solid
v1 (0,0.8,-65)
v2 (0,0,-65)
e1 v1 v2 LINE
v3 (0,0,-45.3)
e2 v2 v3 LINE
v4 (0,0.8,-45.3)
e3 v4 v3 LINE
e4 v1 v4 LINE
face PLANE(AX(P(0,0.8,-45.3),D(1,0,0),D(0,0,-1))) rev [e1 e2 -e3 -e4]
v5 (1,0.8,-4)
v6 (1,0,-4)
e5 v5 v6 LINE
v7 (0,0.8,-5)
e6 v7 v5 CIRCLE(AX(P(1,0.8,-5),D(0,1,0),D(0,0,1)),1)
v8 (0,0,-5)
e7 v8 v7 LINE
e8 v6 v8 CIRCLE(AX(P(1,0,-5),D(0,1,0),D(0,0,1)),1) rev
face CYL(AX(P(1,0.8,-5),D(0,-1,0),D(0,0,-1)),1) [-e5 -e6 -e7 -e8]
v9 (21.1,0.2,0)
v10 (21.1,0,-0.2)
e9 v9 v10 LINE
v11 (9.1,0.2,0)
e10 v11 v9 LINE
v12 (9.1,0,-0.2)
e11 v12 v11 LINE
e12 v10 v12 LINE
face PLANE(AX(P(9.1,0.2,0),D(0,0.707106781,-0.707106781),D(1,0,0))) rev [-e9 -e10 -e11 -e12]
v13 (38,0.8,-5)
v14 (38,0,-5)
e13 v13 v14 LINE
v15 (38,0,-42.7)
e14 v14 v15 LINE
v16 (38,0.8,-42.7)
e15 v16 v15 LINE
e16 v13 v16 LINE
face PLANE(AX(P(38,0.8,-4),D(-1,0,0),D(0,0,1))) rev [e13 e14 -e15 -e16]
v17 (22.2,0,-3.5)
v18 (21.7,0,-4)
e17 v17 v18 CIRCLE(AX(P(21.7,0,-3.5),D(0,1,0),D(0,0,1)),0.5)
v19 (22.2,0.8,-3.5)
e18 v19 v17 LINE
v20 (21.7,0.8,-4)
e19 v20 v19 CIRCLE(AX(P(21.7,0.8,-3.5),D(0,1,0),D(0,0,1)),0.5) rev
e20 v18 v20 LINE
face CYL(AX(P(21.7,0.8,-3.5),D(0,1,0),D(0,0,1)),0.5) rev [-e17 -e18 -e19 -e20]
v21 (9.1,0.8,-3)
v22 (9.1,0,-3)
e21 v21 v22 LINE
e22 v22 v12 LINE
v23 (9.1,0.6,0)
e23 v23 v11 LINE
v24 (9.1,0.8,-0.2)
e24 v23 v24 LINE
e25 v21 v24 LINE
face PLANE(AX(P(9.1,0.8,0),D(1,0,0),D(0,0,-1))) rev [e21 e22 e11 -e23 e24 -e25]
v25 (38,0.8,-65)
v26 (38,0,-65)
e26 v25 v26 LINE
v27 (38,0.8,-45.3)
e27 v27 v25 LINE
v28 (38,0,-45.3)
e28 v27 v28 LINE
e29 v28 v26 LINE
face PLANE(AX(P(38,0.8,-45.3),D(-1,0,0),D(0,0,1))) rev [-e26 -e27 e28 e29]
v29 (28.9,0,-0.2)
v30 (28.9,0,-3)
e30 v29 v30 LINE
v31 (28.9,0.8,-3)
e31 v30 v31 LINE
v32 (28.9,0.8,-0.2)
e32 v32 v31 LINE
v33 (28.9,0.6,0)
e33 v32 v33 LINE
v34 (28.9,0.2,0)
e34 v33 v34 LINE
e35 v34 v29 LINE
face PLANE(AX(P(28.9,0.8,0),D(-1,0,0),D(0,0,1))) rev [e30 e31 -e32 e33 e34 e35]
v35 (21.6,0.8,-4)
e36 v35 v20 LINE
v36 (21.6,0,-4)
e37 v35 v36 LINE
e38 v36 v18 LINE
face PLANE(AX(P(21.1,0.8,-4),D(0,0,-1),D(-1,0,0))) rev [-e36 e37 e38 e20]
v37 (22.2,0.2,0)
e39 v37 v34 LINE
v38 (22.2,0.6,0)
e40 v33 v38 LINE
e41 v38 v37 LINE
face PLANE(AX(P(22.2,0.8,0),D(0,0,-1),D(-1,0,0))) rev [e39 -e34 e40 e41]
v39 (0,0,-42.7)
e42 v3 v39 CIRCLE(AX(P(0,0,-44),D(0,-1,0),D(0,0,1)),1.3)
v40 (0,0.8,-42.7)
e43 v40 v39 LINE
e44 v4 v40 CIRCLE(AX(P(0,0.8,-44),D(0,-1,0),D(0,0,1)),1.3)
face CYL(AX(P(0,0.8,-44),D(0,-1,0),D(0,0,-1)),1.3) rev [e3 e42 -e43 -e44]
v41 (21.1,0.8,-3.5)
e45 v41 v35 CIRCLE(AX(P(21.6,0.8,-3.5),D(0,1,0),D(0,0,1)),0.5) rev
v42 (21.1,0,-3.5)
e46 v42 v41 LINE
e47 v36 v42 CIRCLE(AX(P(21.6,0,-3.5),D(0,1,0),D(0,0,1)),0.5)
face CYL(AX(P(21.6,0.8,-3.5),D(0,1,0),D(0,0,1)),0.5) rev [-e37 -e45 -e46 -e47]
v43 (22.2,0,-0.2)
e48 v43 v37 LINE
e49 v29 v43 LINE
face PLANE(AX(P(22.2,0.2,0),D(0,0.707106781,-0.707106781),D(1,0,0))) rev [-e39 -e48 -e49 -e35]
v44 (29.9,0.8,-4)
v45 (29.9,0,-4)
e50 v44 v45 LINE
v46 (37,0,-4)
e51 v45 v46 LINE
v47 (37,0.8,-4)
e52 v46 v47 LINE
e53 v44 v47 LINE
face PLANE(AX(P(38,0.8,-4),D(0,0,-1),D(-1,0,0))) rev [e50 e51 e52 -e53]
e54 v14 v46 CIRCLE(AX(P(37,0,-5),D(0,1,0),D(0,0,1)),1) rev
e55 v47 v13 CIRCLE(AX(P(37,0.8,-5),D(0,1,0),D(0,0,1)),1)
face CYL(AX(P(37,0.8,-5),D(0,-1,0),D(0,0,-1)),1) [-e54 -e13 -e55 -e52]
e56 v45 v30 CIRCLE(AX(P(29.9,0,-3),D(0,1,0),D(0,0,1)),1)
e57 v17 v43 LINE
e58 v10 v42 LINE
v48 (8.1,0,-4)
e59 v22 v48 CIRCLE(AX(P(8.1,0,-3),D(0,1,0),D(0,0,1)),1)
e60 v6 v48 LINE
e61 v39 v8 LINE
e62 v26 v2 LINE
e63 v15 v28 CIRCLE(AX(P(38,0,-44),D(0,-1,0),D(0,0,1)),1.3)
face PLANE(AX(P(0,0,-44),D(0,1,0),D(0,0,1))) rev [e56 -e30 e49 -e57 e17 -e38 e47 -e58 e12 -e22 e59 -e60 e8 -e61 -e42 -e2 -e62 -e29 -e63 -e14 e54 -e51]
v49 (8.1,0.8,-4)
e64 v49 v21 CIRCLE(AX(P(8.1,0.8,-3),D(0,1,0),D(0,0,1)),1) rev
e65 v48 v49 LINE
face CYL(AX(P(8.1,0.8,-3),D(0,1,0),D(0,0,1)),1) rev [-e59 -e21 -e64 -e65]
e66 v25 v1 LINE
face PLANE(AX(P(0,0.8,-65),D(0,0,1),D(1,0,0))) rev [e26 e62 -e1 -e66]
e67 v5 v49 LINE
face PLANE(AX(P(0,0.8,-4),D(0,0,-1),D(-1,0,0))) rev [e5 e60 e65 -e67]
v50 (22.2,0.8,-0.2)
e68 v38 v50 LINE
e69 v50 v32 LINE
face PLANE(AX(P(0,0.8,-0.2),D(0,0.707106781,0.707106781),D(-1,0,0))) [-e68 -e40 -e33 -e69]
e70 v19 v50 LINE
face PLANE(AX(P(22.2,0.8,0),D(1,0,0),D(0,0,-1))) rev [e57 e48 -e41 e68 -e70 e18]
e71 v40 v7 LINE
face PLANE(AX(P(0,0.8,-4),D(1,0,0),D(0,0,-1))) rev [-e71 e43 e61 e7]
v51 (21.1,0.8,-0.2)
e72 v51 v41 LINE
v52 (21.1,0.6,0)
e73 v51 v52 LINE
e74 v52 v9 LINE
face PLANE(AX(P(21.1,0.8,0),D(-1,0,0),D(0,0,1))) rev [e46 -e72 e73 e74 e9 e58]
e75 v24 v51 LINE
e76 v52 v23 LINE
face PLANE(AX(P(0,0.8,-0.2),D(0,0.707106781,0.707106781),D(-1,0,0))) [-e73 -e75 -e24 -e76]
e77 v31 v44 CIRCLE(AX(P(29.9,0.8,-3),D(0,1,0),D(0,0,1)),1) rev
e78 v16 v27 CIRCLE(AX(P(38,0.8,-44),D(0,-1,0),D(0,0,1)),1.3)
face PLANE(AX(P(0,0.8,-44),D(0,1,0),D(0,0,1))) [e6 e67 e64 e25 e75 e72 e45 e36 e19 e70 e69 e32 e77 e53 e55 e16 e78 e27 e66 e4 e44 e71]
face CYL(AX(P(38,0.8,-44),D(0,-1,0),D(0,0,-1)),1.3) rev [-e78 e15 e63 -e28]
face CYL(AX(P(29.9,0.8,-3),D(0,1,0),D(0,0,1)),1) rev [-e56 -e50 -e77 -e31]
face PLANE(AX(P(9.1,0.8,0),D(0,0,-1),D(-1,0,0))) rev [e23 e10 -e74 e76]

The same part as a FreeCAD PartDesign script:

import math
import FreeCAD as App
import Part
import Sketcher

V = App.Vector
Q = App.Units.Quantity


def edges_at(feature, points):
    """Names of the edges that pass closest to the given points."""
    edges = feature.Shape.Edges
    near = lambda p: min(range(len(edges)), key=lambda i: edges[i].distToShape(Part.Vertex(*p))[0])
    return sorted({f"Edge{near(p) + 1}" for p in points})

doc = App.newDocument("Part")
body = doc.addObject("PartDesign::Body", "Body")

# Sketch on XZ plane
sketch1 = doc.addObject("Sketcher::SketchObject", "Sketch")
body.addObject(sketch1)
sketch1.AttachmentSupport = (doc.XZ_Plane, [""])
sketch1.MapMode = "FlatFace"
sketch1.addGeometry(Part.LineSegment(V(9.1, 0, 0), V(21.1, 0, 0)), False)
sketch1.addGeometry(Part.LineSegment(V(21.1, 0, 0), V(21.1, -4, 0)), False)
sketch1.addGeometry(Part.LineSegment(V(21.1, -4, 0), V(22.2, -4, 0)), False)
sketch1.addGeometry(Part.LineSegment(V(22.2, -4, 0), V(22.2, 0, 0)), False)
sketch1.addGeometry(Part.LineSegment(V(22.2, 0, 0), V(28.9, 0, 0)), False)
sketch1.addGeometry(Part.LineSegment(V(28.9, 0, 0), V(28.9, -4, 0)), False)
sketch1.addGeometry(Part.LineSegment(V(28.9, -4, 0), V(38, -4, 0)), False)
sketch1.addGeometry(Part.LineSegment(V(38, -4, 0), V(38, -42.7, 0)), False)
sketch1.addGeometry(Part.ArcOfCircle(Part.Circle(V(38, -44, 0), V(0, 0, 1), 1.3), math.radians(90), math.radians(270)), False)
sketch1.addGeometry(Part.LineSegment(V(38, -45.3, 0), V(38, -65, 0)), False)
sketch1.addGeometry(Part.LineSegment(V(38, -65, 0), V(0, -65, 0)), False)
sketch1.addGeometry(Part.LineSegment(V(0, -65, 0), V(0, -45.3, 0)), False)
sketch1.addGeometry(Part.ArcOfCircle(Part.Circle(V(0, -44, 0), V(0, 0, 1), 1.3), math.radians(-90), math.radians(90)), False)
sketch1.addGeometry(Part.LineSegment(V(0, -42.7, 0), V(0, -4, 0)), False)
sketch1.addGeometry(Part.LineSegment(V(0, -4, 0), V(9.1, -4, 0)), False)
sketch1.addGeometry(Part.LineSegment(V(9.1, -4, 0), V(9.1, 0, 0)), False)
sketch1.addConstraint(Sketcher.Constraint("Coincident", 0, 2, 1, 1))
sketch1.addConstraint(Sketcher.Constraint("Coincident", 1, 2, 2, 1))
sketch1.addConstraint(Sketcher.Constraint("Coincident", 2, 2, 3, 1))
sketch1.addConstraint(Sketcher.Constraint("Coincident", 3, 2, 4, 1))
sketch1.addConstraint(Sketcher.Constraint("Coincident", 4, 2, 5, 1))
sketch1.addConstraint(Sketcher.Constraint("Coincident", 5, 2, 6, 1))
sketch1.addConstraint(Sketcher.Constraint("Coincident", 6, 2, 7, 1))
sketch1.addConstraint(Sketcher.Constraint("Coincident", 7, 2, 8, 1))
sketch1.addConstraint(Sketcher.Constraint("Coincident", 8, 2, 9, 1))
sketch1.addConstraint(Sketcher.Constraint("Coincident", 9, 2, 10, 1))
sketch1.addConstraint(Sketcher.Constraint("Coincident", 10, 2, 11, 1))
sketch1.addConstraint(Sketcher.Constraint("Coincident", 11, 2, 12, 1))
sketch1.addConstraint(Sketcher.Constraint("Coincident", 12, 2, 13, 1))
sketch1.addConstraint(Sketcher.Constraint("Coincident", 13, 2, 14, 1))
sketch1.addConstraint(Sketcher.Constraint("Coincident", 14, 2, 15, 1))
sketch1.addConstraint(Sketcher.Constraint("Coincident", 15, 2, 0, 1))
sketch1.addConstraint(Sketcher.Constraint("Horizontal", 0))
sketch1.addConstraint(Sketcher.Constraint("Vertical", 1))
sketch1.addConstraint(Sketcher.Constraint("Horizontal", 2))
sketch1.addConstraint(Sketcher.Constraint("Vertical", 3))
sketch1.addConstraint(Sketcher.Constraint("Horizontal", 4))
sketch1.addConstraint(Sketcher.Constraint("Vertical", 5))
sketch1.addConstraint(Sketcher.Constraint("Horizontal", 6))
sketch1.addConstraint(Sketcher.Constraint("Vertical", 7))
sketch1.addConstraint(Sketcher.Constraint("Vertical", 9))
sketch1.addConstraint(Sketcher.Constraint("Horizontal", 10))
sketch1.addConstraint(Sketcher.Constraint("Vertical", 11))
sketch1.addConstraint(Sketcher.Constraint("Vertical", 13))
sketch1.addConstraint(Sketcher.Constraint("Horizontal", 14))
sketch1.addConstraint(Sketcher.Constraint("Vertical", 15))
sketch1.addConstraint(Sketcher.Constraint("Equal", 8, 12))
sketch1.addConstraint(Sketcher.Constraint("PointOnObject", 12, 3, -2))
sketch1.addConstraint(Sketcher.Constraint("PointOnObject", 0, 2, -1))
sketch1.addConstraint(Sketcher.Constraint("PointOnObject", 3, 2, -1))
sketch1.addConstraint(Sketcher.Constraint("PointOnObject", 10, 2, -2))
sketch1.addConstraint(Sketcher.Constraint("PointOnObject", 12, 2, -2))
sketch1.addConstraint(Sketcher.Constraint("Horizontal", 8, 3, 12, 3))
sketch1.addConstraint(Sketcher.Constraint("Horizontal", 2, 2, 5, 2))
sketch1.addConstraint(Sketcher.Constraint("Horizontal", 6, 2, 13, 2))
sketch1.addConstraint(Sketcher.Constraint("Vertical", 8, 3, 6, 2))
sketch1.addConstraint(Sketcher.Constraint("Vertical", 7, 2, 8, 2))
sketch1.addConstraint(Sketcher.Constraint("Equal", 6, 14))
sketch1.addConstraint(Sketcher.Constraint("Radius", 8, Q("1.3 mm")))
sketch1.addConstraint(Sketcher.Constraint("DistanceX", 0, 1, 0, 2, Q("12 mm")))
sketch1.addConstraint(Sketcher.Constraint("DistanceX", 10, 2, 10, 1, Q("38 mm")))
sketch1.addConstraint(Sketcher.Constraint("DistanceY", 1, 2, 1, 1, Q("4 mm")))
sketch1.addConstraint(Sketcher.Constraint("DistanceX", 2, 1, 2, 2, Q("1.1 mm")))
sketch1.addConstraint(Sketcher.Constraint("DistanceX", 4, 1, 4, 2, Q("6.7 mm")))
sketch1.addConstraint(Sketcher.Constraint("DistanceY", 7, 2, 7, 1, Q("38.7 mm")))
sketch1.addConstraint(Sketcher.Constraint("DistanceY", 9, 2, 9, 1, Q("19.7 mm")))
pad1 = doc.addObject("PartDesign::Pad", "Pad")
body.addObject(pad1)
pad1.Profile = sketch1
pad1.Length = 0.8
pad1.Reversed = True
doc.recompute()

chamfer = doc.addObject("PartDesign::Chamfer", "Chamfer")
body.addObject(chamfer)
chamfer.Base = (pad1, edges_at(pad1, [
    (25.55, 0, 0),
    (15.1, 0, 0),
    (15.1, 0.8, 0),
    (25.55, 0.8, 0),
]))
chamfer.Size = 0.2
doc.recompute()

fillet = doc.addObject("PartDesign::Fillet", "Fillet")
body.addObject(fillet)
fillet.Base = (chamfer, edges_at(chamfer, [
    (38, 0.4, -4),
    (28.9, 0.4, -4),
    (9.1, 0.4, -4),
    (0, 0.4, -4),
]))
fillet.Radius = 1
doc.recompute()

fillet2 = doc.addObject("PartDesign::Fillet", "Fillet001")
body.addObject(fillet2)
fillet2.Base = (fillet, edges_at(fillet, [(22.2, 0.4, -4), (21.1, 0.4, -4)]))
fillet2.Radius = 0.5

doc.recompute()
